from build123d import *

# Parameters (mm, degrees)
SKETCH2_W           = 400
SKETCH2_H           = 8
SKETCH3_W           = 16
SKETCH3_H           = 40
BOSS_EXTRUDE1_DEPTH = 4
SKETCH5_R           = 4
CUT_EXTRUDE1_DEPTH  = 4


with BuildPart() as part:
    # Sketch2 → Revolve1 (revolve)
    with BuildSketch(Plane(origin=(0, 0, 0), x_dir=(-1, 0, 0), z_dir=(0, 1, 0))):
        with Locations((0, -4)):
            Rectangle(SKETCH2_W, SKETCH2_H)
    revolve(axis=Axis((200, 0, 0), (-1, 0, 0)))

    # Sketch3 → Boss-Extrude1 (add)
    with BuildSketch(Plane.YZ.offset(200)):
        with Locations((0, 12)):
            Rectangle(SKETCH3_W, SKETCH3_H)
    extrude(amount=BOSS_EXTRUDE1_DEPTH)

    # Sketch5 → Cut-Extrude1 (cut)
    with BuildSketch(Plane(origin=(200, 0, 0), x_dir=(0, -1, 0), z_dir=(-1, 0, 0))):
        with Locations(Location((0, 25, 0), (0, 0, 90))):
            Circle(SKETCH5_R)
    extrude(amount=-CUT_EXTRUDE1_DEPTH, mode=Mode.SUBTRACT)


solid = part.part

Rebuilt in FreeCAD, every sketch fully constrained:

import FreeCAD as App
import Part
import Sketcher
from FreeCAD import Vector


def add_polygon(sketch, points):
    """Adds a closed chain of lines whose ends are joined by coincident constraints."""
    first, n = sketch.GeometryCount, len(points)
    for a, b in zip(points, points[1:] + points[:1]):
        sketch.addGeometry(Part.LineSegment(App.Vector(*a, 0), App.Vector(*b, 0)), False)
    for i in range(n):
        sketch.addConstraint(Sketcher.Constraint("Coincident", first + i, 2, first + (i + 1) % n, 1))

doc = App.newDocument("Part")
body = doc.addObject("PartDesign::Body", "Body")

sketch1 = doc.addObject("Sketcher::SketchObject", "Sketch")
body.addObject(sketch1)
sketch1.AttachmentSupport = (doc.XZ_Plane, [""])
sketch1.MapMode = "FlatFace"
add_polygon(sketch1, [(200, 0), (200, -8), (-200, -8), (-200, 0)])
sketch1.addConstraint(Sketcher.Constraint("Vertical", 0))
sketch1.addConstraint(Sketcher.Constraint("Horizontal", 1))
sketch1.addConstraint(Sketcher.Constraint("Vertical", 2))
sketch1.addConstraint(Sketcher.Constraint("Horizontal", 3))
sketch1.addConstraint(Sketcher.Constraint("Symmetric", 2, 2, 3, 2, -1, 1))
sketch1.addConstraint(Sketcher.Constraint("DistanceX", 1, 2, 1, 1, 400.0))
sketch1.addConstraint(Sketcher.Constraint("DistanceY", 0, 2, 0, 1, 8.0))
revolution = doc.addObject("PartDesign::Revolution", "Revolution")
body.addObject(revolution)
revolution.Profile = sketch1
revolution.ReferenceAxis = (sketch1, ["H_Axis"])
revolution.Angle = 360

sketch2 = doc.addObject("Sketcher::SketchObject", "Sketch001")
body.addObject(sketch2)
sketch2.AttachmentSupport = (doc.YZ_Plane, [""])
sketch2.MapMode = "FlatFace"
sketch2.AttachmentOffset = App.Placement(Vector(0, 0, 200), App.Rotation())
add_polygon(sketch2, [(-8, 32), (-8, -8), (8, -8), (8, 32)])
sketch2.addConstraint(Sketcher.Constraint("Vertical", 0))
sketch2.addConstraint(Sketcher.Constraint("Horizontal", 1))
sketch2.addConstraint(Sketcher.Constraint("Vertical", 2))
sketch2.addConstraint(Sketcher.Constraint("Horizontal", 3))
sketch2.addConstraint(Sketcher.Constraint("DistanceX", 1, 1, 1, 2, 16.0))
sketch2.addConstraint(Sketcher.Constraint("DistanceY", 0, 2, 0, 1, 40.0))
sketch2.addConstraint(Sketcher.Constraint("DistanceX", 0, 2, -1, 1, 8.0))
sketch2.addConstraint(Sketcher.Constraint("DistanceY", 0, 2, -1, 1, 8.0))
pad1 = doc.addObject("PartDesign::Pad", "Pad")
body.addObject(pad1)
pad1.Profile = sketch2
pad1.Length = 4

sketch3 = doc.addObject("Sketcher::SketchObject", "Sketch002")
body.addObject(sketch3)
sketch3.AttachmentSupport = (doc.YZ_Plane, [""])
sketch3.MapMode = "FlatFace"
sketch3.AttachmentOffset = App.Placement(Vector(0, 0, 200), App.Rotation())
sketch3.addGeometry(Part.Circle(Vector(0, 25, 0), Vector(0, 0, 1), 4), False)
sketch3.addConstraint(Sketcher.Constraint("PointOnObject", 0, 3, -2))
sketch3.addConstraint(Sketcher.Constraint("Diameter", 0, 8.0))
sketch3.addConstraint(Sketcher.Constraint("DistanceY", -1, 1, 0, 3, 25.0))
pocket1 = doc.addObject("PartDesign::Pocket", "Pocket")
body.addObject(pocket1)
pocket1.Profile = sketch3
pocket1.Length = 4
pocket1.Reversed = True

doc.recompute()
